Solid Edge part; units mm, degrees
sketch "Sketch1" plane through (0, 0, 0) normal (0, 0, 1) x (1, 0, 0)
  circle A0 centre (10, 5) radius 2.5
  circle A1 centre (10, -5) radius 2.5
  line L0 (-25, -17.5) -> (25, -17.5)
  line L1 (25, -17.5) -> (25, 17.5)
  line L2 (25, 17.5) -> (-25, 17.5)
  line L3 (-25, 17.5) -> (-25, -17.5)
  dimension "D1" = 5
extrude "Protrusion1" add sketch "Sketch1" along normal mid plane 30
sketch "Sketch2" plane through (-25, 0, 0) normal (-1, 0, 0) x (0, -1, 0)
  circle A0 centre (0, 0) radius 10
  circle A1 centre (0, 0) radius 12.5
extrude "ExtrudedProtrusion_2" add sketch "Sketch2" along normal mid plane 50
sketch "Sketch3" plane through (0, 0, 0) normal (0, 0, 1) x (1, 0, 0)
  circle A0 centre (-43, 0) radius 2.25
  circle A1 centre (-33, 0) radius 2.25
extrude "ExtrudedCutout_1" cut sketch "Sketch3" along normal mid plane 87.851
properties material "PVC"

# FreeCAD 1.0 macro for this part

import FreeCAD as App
import Part
import Sketcher

V = App.Vector

doc = App.newDocument("Part")
body = doc.addObject("PartDesign::Body", "Body")

# Sketch on XY plane
sketch1 = body.newObject("Sketcher::SketchObject", "Sketch")
sketch1.AttachmentSupport = (doc.getObject("XY_Plane"), [""])
sketch1.MapMode = "FlatFace"
sketch1.addGeometry([
    Part.LineSegment(V(-25, 17.5, 0), V(-25, -17.5, 0)),  # 0
    Part.LineSegment(V(-25, -17.5, 0), V(25, -17.5, 0)),  # 1
    Part.LineSegment(V(25, -17.5, 0), V(25, 17.5, 0)),  # 2
    Part.LineSegment(V(25, 17.5, 0), V(-25, 17.5, 0)),  # 3
    Part.Circle(V(10, -5, 0), V(0, 0, 1), 2.5),  # 4
    Part.Circle(V(10, 5, 0), V(0, 0, 1), 2.5),  # 5
], False)
sketch1.addConstraint([
    Sketcher.Constraint("Coincident", 0, 2, 1, 1),
    Sketcher.Constraint("Coincident", 1, 2, 2, 1),
    Sketcher.Constraint("Coincident", 2, 2, 3, 1),
    Sketcher.Constraint("Coincident", 3, 2, 0, 1),
    Sketcher.Constraint("Vertical", 0),
    Sketcher.Constraint("Horizontal", 1),
    Sketcher.Constraint("Vertical", 2),
    Sketcher.Constraint("Horizontal", 3),
    Sketcher.Constraint("Equal", 4, 5),
    Sketcher.Constraint("Symmetric", 0, 2, 2, 2, -1, 1),
    Sketcher.Constraint("Symmetric", 4, 3, 5, 3, -1),
    Sketcher.Constraint("Diameter", 4, 5.0),
    Sketcher.Constraint("DistanceX", 1, 1, 1, 2, 50.0),
    Sketcher.Constraint("DistanceY", 0, 2, 0, 1, 35.0),
    Sketcher.Constraint("DistanceX", -1, 1, 4, 3, 10.0),
    Sketcher.Constraint("DistanceY", 4, 3, -1, 1, 5.0),
])
pad1 = body.newObject("PartDesign::Pad", "Pad")
pad1.Profile = sketch1
pad1.Length = 30
pad1.Midplane = True

# Sketch on YZ plane
sketch2 = body.newObject("Sketcher::SketchObject", "Sketch001")
sketch2.AttachmentSupport = (doc.getObject("YZ_Plane"), [""])
sketch2.MapMode = "FlatFace"
sketch2.AttachmentOffset = App.Placement(V(0, 0, -25), App.Rotation())
sketch2.addGeometry([
    Part.Circle(V(0, 0, 0), V(0, 0, 1), 12.5),
    Part.Circle(V(0, 0, 0), V(0, 0, 1), 10),
], False)
sketch2.addConstraint([
    Sketcher.Constraint("Coincident", 0, 3, -1, 1),
    Sketcher.Constraint("Coincident", 1, 3, -1, 1),
    Sketcher.Constraint("Diameter", 0, 25.0),
    Sketcher.Constraint("Diameter", 1, 20.0),
])
pad2 = body.newObject("PartDesign::Pad", "Pad001")
pad2.Profile = sketch2
pad2.Length = 50
pad2.Midplane = True

# Sketch on XY plane
sketch3 = body.newObject("Sketcher::SketchObject", "Sketch002")
sketch3.AttachmentSupport = (doc.getObject("XY_Plane"), [""])
sketch3.MapMode = "FlatFace"
sketch3.addGeometry([
    Part.Circle(V(-43, 0, 0), V(0, 0, 1), 2.25),
    Part.Circle(V(-33, 0, 0), V(0, 0, 1), 2.25),
], False)
sketch3.addConstraint([
    Sketcher.Constraint("Equal", 0, 1),
    Sketcher.Constraint("PointOnObject", 0, 3, -1),
    Sketcher.Constraint("PointOnObject", 1, 3, -1),
    Sketcher.Constraint("Diameter", 0, 4.5),
    Sketcher.Constraint("DistanceX", 0, 3, -1, 1, 43.0),
    Sketcher.Constraint("DistanceX", 1, 3, -1, 1, 33.0),
])
pocket1 = body.newObject("PartDesign::Pocket", "Pocket")
pocket1.Profile = sketch3
pocket1.Length = 87.851
pocket1.Midplane = True

doc.recompute()
